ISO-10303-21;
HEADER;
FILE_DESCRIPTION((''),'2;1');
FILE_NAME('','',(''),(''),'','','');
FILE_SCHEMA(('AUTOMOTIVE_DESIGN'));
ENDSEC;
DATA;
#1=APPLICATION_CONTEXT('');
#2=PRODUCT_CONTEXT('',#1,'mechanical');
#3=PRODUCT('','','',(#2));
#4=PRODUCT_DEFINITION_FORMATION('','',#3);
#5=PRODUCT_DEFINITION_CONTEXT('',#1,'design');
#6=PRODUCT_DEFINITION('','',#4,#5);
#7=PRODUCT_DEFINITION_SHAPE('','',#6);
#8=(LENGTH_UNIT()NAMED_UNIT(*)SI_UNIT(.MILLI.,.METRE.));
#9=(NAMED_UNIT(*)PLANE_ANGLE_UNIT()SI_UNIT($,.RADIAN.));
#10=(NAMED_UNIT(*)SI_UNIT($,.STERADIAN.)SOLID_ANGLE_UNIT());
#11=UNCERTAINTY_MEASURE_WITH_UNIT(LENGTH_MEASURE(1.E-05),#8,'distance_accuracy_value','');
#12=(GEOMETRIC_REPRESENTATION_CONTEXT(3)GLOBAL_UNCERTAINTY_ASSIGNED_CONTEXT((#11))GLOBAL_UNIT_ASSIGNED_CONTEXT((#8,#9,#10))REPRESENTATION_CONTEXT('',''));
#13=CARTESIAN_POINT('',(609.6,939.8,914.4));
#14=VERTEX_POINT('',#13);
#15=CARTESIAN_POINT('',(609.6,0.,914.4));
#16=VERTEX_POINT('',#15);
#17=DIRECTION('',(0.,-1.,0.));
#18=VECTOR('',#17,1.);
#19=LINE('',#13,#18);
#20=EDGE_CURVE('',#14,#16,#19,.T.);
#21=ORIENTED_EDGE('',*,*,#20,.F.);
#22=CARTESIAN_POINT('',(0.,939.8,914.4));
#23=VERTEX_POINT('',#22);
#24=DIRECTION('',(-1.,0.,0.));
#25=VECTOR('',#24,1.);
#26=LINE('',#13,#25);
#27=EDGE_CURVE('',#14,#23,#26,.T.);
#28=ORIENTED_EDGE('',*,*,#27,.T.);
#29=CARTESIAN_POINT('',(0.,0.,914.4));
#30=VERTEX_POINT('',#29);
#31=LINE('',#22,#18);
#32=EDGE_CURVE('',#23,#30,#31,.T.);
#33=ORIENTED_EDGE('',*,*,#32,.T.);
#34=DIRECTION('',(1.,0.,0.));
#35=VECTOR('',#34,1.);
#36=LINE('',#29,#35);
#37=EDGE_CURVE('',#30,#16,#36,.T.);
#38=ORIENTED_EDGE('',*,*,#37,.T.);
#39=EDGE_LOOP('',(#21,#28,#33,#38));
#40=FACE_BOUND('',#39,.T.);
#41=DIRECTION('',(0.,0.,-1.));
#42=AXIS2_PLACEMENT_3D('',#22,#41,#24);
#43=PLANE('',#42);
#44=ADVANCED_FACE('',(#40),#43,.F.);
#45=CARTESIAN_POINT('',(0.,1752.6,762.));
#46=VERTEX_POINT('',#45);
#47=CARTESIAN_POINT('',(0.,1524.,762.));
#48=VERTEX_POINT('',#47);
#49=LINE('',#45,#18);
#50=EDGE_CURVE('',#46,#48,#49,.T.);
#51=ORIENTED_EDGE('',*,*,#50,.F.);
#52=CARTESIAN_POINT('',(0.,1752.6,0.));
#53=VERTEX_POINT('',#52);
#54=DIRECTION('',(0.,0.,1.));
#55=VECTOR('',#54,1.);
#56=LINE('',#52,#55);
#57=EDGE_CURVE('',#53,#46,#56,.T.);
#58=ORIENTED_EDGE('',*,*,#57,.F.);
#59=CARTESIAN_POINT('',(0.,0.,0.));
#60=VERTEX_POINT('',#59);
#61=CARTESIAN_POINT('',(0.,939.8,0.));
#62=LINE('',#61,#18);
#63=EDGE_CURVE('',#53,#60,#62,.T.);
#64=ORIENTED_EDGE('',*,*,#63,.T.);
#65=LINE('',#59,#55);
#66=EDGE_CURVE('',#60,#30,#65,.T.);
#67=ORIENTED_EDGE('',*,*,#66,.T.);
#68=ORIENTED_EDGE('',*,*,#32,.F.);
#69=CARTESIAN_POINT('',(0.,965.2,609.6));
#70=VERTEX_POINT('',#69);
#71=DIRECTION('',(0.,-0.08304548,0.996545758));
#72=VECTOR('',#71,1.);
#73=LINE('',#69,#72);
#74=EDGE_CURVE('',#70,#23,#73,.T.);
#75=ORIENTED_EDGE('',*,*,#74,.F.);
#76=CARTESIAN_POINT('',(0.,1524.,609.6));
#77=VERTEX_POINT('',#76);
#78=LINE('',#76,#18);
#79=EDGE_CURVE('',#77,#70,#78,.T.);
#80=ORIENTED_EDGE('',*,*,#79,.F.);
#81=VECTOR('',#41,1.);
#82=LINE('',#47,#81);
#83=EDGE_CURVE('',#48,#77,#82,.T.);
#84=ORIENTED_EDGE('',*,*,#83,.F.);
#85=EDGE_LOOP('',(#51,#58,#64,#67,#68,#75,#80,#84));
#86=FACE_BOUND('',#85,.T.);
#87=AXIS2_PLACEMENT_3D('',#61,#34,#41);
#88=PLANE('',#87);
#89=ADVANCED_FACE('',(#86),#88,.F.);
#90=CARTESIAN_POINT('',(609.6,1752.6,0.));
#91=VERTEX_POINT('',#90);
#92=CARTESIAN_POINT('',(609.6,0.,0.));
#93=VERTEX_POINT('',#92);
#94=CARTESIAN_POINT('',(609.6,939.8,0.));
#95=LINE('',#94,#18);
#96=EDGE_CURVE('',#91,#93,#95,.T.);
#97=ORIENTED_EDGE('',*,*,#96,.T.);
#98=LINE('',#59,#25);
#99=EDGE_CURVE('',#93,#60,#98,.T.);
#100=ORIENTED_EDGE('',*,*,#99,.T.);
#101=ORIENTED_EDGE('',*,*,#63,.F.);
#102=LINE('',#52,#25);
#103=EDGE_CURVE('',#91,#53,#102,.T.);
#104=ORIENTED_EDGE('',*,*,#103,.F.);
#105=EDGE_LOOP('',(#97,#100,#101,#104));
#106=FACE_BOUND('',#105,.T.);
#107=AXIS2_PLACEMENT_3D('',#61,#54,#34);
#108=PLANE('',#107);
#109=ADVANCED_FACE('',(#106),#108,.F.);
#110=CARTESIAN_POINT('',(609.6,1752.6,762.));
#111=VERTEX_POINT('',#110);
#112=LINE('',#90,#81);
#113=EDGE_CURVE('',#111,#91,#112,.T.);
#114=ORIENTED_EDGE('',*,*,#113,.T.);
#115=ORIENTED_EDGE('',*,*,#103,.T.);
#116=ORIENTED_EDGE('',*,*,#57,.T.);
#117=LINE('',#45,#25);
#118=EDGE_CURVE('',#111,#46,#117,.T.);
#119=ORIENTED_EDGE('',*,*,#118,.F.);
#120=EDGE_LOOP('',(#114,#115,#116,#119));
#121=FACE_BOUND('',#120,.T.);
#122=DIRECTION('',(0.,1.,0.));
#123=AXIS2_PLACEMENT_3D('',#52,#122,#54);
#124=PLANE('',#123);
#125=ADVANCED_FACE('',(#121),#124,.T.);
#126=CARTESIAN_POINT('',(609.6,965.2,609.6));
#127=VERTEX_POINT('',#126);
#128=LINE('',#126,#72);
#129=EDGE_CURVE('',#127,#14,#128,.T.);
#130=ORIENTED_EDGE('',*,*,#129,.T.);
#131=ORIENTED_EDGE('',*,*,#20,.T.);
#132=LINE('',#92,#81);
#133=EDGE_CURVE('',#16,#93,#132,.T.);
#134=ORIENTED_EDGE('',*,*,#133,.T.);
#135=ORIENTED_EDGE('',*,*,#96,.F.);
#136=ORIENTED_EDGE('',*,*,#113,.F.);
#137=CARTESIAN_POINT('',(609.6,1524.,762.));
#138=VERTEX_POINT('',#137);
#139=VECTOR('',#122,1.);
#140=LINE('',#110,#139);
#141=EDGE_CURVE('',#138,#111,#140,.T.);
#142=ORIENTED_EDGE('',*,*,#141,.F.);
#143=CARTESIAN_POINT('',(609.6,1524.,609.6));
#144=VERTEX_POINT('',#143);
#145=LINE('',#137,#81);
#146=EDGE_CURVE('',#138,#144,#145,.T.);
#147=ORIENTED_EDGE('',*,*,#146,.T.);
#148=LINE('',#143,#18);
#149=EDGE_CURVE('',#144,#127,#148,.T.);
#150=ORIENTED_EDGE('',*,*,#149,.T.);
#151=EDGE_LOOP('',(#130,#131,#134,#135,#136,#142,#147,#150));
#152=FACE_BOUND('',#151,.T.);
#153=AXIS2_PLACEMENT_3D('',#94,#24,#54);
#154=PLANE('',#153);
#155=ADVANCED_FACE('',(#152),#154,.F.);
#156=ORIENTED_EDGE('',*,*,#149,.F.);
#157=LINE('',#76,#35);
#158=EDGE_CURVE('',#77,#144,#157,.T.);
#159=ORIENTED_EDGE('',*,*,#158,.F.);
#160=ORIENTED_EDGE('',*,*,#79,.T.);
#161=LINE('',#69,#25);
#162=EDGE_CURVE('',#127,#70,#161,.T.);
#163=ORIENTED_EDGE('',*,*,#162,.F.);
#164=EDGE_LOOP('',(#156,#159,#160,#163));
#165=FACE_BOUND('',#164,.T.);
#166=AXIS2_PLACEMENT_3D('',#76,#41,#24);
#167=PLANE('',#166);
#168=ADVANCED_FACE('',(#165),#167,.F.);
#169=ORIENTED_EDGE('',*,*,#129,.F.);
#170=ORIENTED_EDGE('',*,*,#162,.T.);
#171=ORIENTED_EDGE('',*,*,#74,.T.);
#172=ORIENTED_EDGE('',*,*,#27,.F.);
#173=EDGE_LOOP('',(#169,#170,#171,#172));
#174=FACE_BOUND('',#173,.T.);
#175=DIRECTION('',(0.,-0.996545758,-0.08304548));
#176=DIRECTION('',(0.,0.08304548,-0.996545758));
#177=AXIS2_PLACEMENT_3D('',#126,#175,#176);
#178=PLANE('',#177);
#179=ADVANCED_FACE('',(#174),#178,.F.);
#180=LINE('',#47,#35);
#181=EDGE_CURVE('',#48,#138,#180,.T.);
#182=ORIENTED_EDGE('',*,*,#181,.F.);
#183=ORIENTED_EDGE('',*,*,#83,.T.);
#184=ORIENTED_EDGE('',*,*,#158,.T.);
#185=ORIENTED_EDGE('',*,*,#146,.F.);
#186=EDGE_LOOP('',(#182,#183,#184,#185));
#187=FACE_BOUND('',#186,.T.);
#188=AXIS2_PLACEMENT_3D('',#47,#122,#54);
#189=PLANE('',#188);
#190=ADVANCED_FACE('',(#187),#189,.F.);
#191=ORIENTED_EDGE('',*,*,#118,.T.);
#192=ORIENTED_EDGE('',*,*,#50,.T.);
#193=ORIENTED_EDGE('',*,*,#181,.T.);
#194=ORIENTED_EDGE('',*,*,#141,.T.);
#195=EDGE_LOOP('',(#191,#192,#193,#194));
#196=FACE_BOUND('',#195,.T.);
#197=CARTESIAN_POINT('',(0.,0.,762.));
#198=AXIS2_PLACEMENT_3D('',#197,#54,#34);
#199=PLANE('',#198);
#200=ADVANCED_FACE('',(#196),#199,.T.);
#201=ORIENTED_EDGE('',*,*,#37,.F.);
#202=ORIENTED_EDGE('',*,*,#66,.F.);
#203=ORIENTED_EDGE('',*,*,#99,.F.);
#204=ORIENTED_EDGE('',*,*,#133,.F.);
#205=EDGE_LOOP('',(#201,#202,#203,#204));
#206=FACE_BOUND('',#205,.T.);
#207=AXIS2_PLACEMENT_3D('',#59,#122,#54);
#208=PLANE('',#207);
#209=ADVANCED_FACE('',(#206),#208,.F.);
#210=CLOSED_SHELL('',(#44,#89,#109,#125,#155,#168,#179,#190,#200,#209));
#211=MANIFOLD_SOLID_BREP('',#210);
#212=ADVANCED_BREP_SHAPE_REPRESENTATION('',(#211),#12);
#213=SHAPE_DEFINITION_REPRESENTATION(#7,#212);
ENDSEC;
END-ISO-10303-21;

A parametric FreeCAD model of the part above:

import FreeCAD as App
import Part
import Sketcher

V = App.Vector
Q = App.Units.Quantity

doc = App.newDocument("Part")
body = doc.addObject("PartDesign::Body", "Body")

# Sketch on XZ plane
sketch1 = body.newObject("Sketcher::SketchObject", "Sketch")
sketch1.AttachmentSupport = (doc.getObject("XZ_Plane"), [""])
sketch1.MapMode = "FlatFace"
sketch1.addGeometry(Part.LineSegment(V(0, 0, 0), V(0, 914.4, 0)), False)
sketch1.addGeometry(Part.LineSegment(V(0, 914.4, 0), V(609.6, 914.4, 0)), False)
sketch1.addGeometry(Part.LineSegment(V(609.6, 914.4, 0), V(609.6, 0, 0)), False)
sketch1.addGeometry(Part.LineSegment(V(609.6, 0, 0), V(0, 0, 0)), False)
sketch1.addConstraint(Sketcher.Constraint("Coincident", 0, 2, 1, 1))
sketch1.addConstraint(Sketcher.Constraint("Coincident", 1, 2, 2, 1))
sketch1.addConstraint(Sketcher.Constraint("Coincident", 2, 2, 3, 1))
sketch1.addConstraint(Sketcher.Constraint("Coincident", 3, 2, 0, 1))
sketch1.addConstraint(Sketcher.Constraint("Vertical", 0))
sketch1.addConstraint(Sketcher.Constraint("Horizontal", 1))
sketch1.addConstraint(Sketcher.Constraint("Vertical", 2))
sketch1.addConstraint(Sketcher.Constraint("Horizontal", 3))
sketch1.addConstraint(Sketcher.Constraint("Coincident", 3, 2, -1, 1))
sketch1.addConstraint(Sketcher.Constraint("DistanceX", 1, 1, 1, 2, Q("24 in")))
sketch1.addConstraint(Sketcher.Constraint("DistanceY", 0, 1, 0, 2, Q("36 in")))
pad1 = body.newObject("PartDesign::Pad", "Pad")
pad1.Profile = sketch1
pad1.Length = Q("37 in")
pad1.Reversed = True

# Sketch on XZ plane
sketch2 = body.newObject("Sketcher::SketchObject", "Sketch001")
sketch2.AttachmentSupport = (doc.getObject("XZ_Plane"), [""])
sketch2.MapMode = "FlatFace"
sketch2.AttachmentOffset = App.Placement(V(0, 0, -37 * 25.4), App.Rotation())
sketch2.addGeometry(Part.LineSegment(V(0, 609.6, 0), V(0, 914.4, 0)), False)
sketch2.addGeometry(Part.LineSegment(V(0, 914.4, 0), V(609.6, 914.4, 0)), False)
sketch2.addGeometry(Part.LineSegment(V(609.6, 914.4, 0), V(609.6, 609.6, 0)), False)
sketch2.addGeometry(Part.LineSegment(V(609.6, 609.6, 0), V(0, 609.6, 0)), False)
sketch2.addConstraint(Sketcher.Constraint("Coincident", 0, 2, 1, 1))
sketch2.addConstraint(Sketcher.Constraint("Coincident", 1, 2, 2, 1))
sketch2.addConstraint(Sketcher.Constraint("Coincident", 2, 2, 3, 1))
sketch2.addConstraint(Sketcher.Constraint("Coincident", 3, 2, 0, 1))
sketch2.addConstraint(Sketcher.Constraint("Vertical", 0))
sketch2.addConstraint(Sketcher.Constraint("Horizontal", 1))
sketch2.addConstraint(Sketcher.Constraint("Vertical", 2))
sketch2.addConstraint(Sketcher.Constraint("Horizontal", 3))
sketch2.addConstraint(Sketcher.Constraint("PointOnObject", 0, 2, -2))
sketch2.addConstraint(Sketcher.Constraint("DistanceX", 1, 1, 1, 2, Q("24 in")))
sketch2.addConstraint(Sketcher.Constraint("DistanceY", 0, 1, 0, 2, Q("12 in")))
sketch2.addConstraint(Sketcher.Constraint("DistanceY", -1, 1, 0, 2, Q("36 in")))
pad2 = body.newObject("PartDesign::Pad", "Pad001")
pad2.Profile = sketch2
pad2.Length = Q("1 in")
pad2.Reversed = True

# Sketch on YZ plane
sketch3 = body.newObject("Sketcher::SketchObject", "Sketch002")
sketch3.AttachmentSupport = (doc.getObject("YZ_Plane"), [""])
sketch3.MapMode = "FlatFace"
sketch3.addGeometry(Part.LineSegment(V(965.2, 609.6, 0), V(939.8, 914.4, 0)), False)
sketch3.addGeometry(Part.LineSegment(V(939.8, 914.4, 0), V(965.2, 914.4, 0)), False)
sketch3.addGeometry(Part.LineSegment(V(965.2, 914.4, 0), V(965.2, 609.6, 0)), False)
sketch3.addConstraint(Sketcher.Constraint("Coincident", 0, 2, 1, 1))
sketch3.addConstraint(Sketcher.Constraint("Coincident", 1, 2, 2, 1))
sketch3.addConstraint(Sketcher.Constraint("Coincident", 2, 2, 0, 1))
sketch3.addConstraint(Sketcher.Constraint("Horizontal", 1))
sketch3.addConstraint(Sketcher.Constraint("Vertical", 2))
sketch3.addConstraint(Sketcher.Constraint("DistanceX", 1, 1, 1, 2, Q("1 in")))
sketch3.addConstraint(Sketcher.Constraint("DistanceY", 2, 2, 2, 1, Q("12 in")))
sketch3.addConstraint(Sketcher.Constraint("DistanceX", -1, 1, 0, 2, Q("37 in")))
sketch3.addConstraint(Sketcher.Constraint("DistanceY", -1, 1, 0, 2, Q("36 in")))
pocket1 = body.newObject("PartDesign::Pocket", "Pocket")
pocket1.Profile = sketch3
pocket1.Type = "ThroughAll"
pocket1.Reversed = True

# Sketch on XZ plane
sketch4 = body.newObject("Sketcher::SketchObject", "Sketch003")
sketch4.AttachmentSupport = (doc.getObject("XZ_Plane"), [""])
sketch4.MapMode = "FlatFace"
sketch4.AttachmentOffset = App.Placement(V(0, 0, -37 * 25.4), App.Rotation())
sketch4.addGeometry(Part.LineSegment(V(0, 0, 0), V(0, 609.6, 0)), False)
sketch4.addGeometry(Part.LineSegment(V(0, 609.6, 0), V(609.6, 609.6, 0)), False)
sketch4.addGeometry(Part.LineSegment(V(609.6, 609.6, 0), V(609.6, 0, 0)), False)
sketch4.addGeometry(Part.LineSegment(V(609.6, 0, 0), V(0, 0, 0)), False)
sketch4.addConstraint(Sketcher.Constraint("Coincident", 0, 2, 1, 1))
sketch4.addConstraint(Sketcher.Constraint("Coincident", 1, 2, 2, 1))
sketch4.addConstraint(Sketcher.Constraint("Coincident", 2, 2, 3, 1))
sketch4.addConstraint(Sketcher.Constraint("Coincident", 3, 2, 0, 1))
sketch4.addConstraint(Sketcher.Constraint("Vertical", 0))
sketch4.addConstraint(Sketcher.Constraint("Horizontal", 1))
sketch4.addConstraint(Sketcher.Constraint("Vertical", 2))
sketch4.addConstraint(Sketcher.Constraint("Horizontal", 3))
sketch4.addConstraint(Sketcher.Constraint("Coincident", 3, 2, -1, 1))
sketch4.addConstraint(Sketcher.Constraint("Equal", 3, 0))
sketch4.addConstraint(Sketcher.Constraint("DistanceX", 1, 1, 1, 2, Q("24 in")))
pad3 = body.newObject("PartDesign::Pad", "Pad002")
pad3.Profile = sketch4
pad3.Length = Q("1 in")
pad3.Reversed = True

# Sketch on XZ plane
sketch5 = body.newObject("Sketcher::SketchObject", "Sketch004")
sketch5.AttachmentSupport = (doc.getObject("XZ_Plane"), [""])
sketch5.MapMode = "FlatFace"
sketch5.AttachmentOffset = App.Placement(V(0, 0, -38 * 25.4), App.Rotation())
sketch5.addGeometry(Part.LineSegment(V(0, 0, 0), V(0, 609.6, 0)), False)
sketch5.addGeometry(Part.LineSegment(V(0, 609.6, 0), V(609.6, 609.6, 0)), False)
sketch5.addGeometry(Part.LineSegment(V(609.6, 609.6, 0), V(609.6, 0, 0)), False)
sketch5.addGeometry(Part.LineSegment(V(609.6, 0, 0), V(0, 0, 0)), False)
sketch5.addConstraint(Sketcher.Constraint("Coincident", 0, 2, 1, 1))
sketch5.addConstraint(Sketcher.Constraint("Coincident", 1, 2, 2, 1))
sketch5.addConstraint(Sketcher.Constraint("Coincident", 2, 2, 3, 1))
sketch5.addConstraint(Sketcher.Constraint("Coincident", 3, 2, 0, 1))
sketch5.addConstraint(Sketcher.Constraint("Vertical", 0))
sketch5.addConstraint(Sketcher.Constraint("Horizontal", 1))
sketch5.addConstraint(Sketcher.Constraint("Vertical", 2))
sketch5.addConstraint(Sketcher.Constraint("Horizontal", 3))
sketch5.addConstraint(Sketcher.Constraint("Coincident", 3, 2, -1, 1))
sketch5.addConstraint(Sketcher.Constraint("Equal", 3, 0))
sketch5.addConstraint(Sketcher.Constraint("DistanceX", 1, 1, 1, 2, Q("24 in")))
pad4 = body.newObject("PartDesign::Pad", "Pad003")
pad4.Profile = sketch5
pad4.Length = Q("22 in")
pad4.Reversed = True

# Sketch on XZ plane
sketch6 = body.newObject("Sketcher::SketchObject", "Sketch005")
sketch6.AttachmentSupport = (doc.getObject("XZ_Plane"), [""])
sketch6.MapMode = "FlatFace"
sketch6.AttachmentOffset = App.Placement(V(0, 0, -60 * 25.4), App.Rotation())
sketch6.addGeometry(Part.LineSegment(V(0, 0, 0), V(0, 609.6, 0)), False)
sketch6.addGeometry(Part.LineSegment(V(0, 609.6, 0), V(609.6, 609.6, 0)), False)
sketch6.addGeometry(Part.LineSegment(V(609.6, 609.6, 0), V(609.6, 0, 0)), False)
sketch6.addGeometry(Part.LineSegment(V(609.6, 0, 0), V(0, 0, 0)), False)
sketch6.addConstraint(Sketcher.Constraint("Coincident", 0, 2, 1, 1))
sketch6.addConstraint(Sketcher.Constraint("Coincident", 1, 2, 2, 1))
sketch6.addConstraint(Sketcher.Constraint("Coincident", 2, 2, 3, 1))
sketch6.addConstraint(Sketcher.Constraint("Coincident", 3, 2, 0, 1))
sketch6.addConstraint(Sketcher.Constraint("Vertical", 0))
sketch6.addConstraint(Sketcher.Constraint("Horizontal", 1))
sketch6.addConstraint(Sketcher.Constraint("Vertical", 2))
sketch6.addConstraint(Sketcher.Constraint("Horizontal", 3))
sketch6.addConstraint(Sketcher.Constraint("Coincident", 3, 2, -1, 1))
sketch6.addConstraint(Sketcher.Constraint("Equal", 3, 0))
sketch6.addConstraint(Sketcher.Constraint("DistanceX", 1, 1, 1, 2, Q("24 in")))
pad5 = body.newObject("PartDesign::Pad", "Pad004")
pad5.Profile = sketch6
pad5.Length = Q("9 in")
pad5.Reversed = True

# Sketch on XY plane
sketch7 = body.newObject("Sketcher::SketchObject", "Sketch006")
sketch7.AttachmentSupport = (doc.getObject("XY_Plane"), [""])
sketch7.MapMode = "FlatFace"
sketch7.AttachmentOffset = App.Placement(V(0, 0, 24 * 25.4), App.Rotation())
sketch7.addGeometry(Part.LineSegment(V(0, 1752.6, 0), V(0, 1524, 0)), False)
sketch7.addGeometry(Part.LineSegment(V(0, 1524, 0), V(609.6, 1524, 0)), False)
sketch7.addGeometry(Part.LineSegment(V(609.6, 1524, 0), V(609.6, 1752.6, 0)), False)
sketch7.addGeometry(Part.LineSegment(V(609.6, 1752.6, 0), V(0, 1752.6, 0)), False)
sketch7.addConstraint(Sketcher.Constraint("Coincident", 0, 2, 1, 1))
sketch7.addConstraint(Sketcher.Constraint("Coincident", 1, 2, 2, 1))
sketch7.addConstraint(Sketcher.Constraint("Coincident", 2, 2, 3, 1))
sketch7.addConstraint(Sketcher.Constraint("Coincident", 3, 2, 0, 1))
sketch7.addConstraint(Sketcher.Constraint("Vertical", 0))
sketch7.addConstraint(Sketcher.Constraint("Horizontal", 1))
sketch7.addConstraint(Sketcher.Constraint("Vertical", 2))
sketch7.addConstraint(Sketcher.Constraint("Horizontal", 3))
sketch7.addConstraint(Sketcher.Constraint("PointOnObject", 0, 2, -2))
sketch7.addConstraint(Sketcher.Constraint("DistanceX", 1, 1, 1, 2, Q("24 in")))
sketch7.addConstraint(Sketcher.Constraint("DistanceY", 0, 2, 0, 1, Q("9 in")))
sketch7.addConstraint(Sketcher.Constraint("DistanceY", -1, 1, 0, 2, Q("60 in")))
pad6 = body.newObject("PartDesign::Pad", "Pad005")
pad6.Profile = sketch7
pad6.Length = Q("6 in")

doc.recompute()
